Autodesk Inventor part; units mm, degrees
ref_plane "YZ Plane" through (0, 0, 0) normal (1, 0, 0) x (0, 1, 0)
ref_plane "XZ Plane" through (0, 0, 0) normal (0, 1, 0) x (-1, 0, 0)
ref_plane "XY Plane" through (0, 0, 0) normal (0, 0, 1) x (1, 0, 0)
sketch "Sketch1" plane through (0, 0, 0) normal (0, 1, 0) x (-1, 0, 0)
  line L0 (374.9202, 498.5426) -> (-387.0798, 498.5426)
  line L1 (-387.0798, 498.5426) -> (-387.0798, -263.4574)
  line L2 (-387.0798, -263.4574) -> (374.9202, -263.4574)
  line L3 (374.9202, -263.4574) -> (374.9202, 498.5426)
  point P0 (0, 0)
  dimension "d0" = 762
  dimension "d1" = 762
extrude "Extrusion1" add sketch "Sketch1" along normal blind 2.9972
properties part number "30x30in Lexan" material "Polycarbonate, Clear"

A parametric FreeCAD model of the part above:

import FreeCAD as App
import Part
import Sketcher

V = App.Vector
Q = App.Units.Quantity

doc = App.newDocument("Part")
params = doc.addObject("Spreadsheet::Sheet", "Params")
for row, (alias, value) in enumerate([
    ("sketch1_width", "30 in"),
    ("pad1_length", "0.118 in"),
], start=1):
    params.set(f"A{row}", alias)
    params.set(f"B{row}", "=" + value)
    params.setAlias(f"B{row}", alias)

body = doc.addObject("PartDesign::Body", "Body")

sketch1 = doc.addObject("Sketcher::SketchObject", "Sketch")
body.addObject(sketch1)
sketch1.AttachmentSupport = (doc.XZ_Plane, [""])
sketch1.MapMode = "FlatFace"
sketch1.addGeometry(Part.LineSegment(V(-375, -263, 0), V(-375, 499, 0)), False)
sketch1.addGeometry(Part.LineSegment(V(-375, 499, 0), V(387, 499, 0)), False)
sketch1.addGeometry(Part.LineSegment(V(387, 499, 0), V(387, -263, 0)), False)
sketch1.addGeometry(Part.LineSegment(V(387, -263, 0), V(-375, -263, 0)), False)
sketch1.addConstraint(Sketcher.Constraint("Coincident", 0, 2, 1, 1))
sketch1.addConstraint(Sketcher.Constraint("Coincident", 1, 2, 2, 1))
sketch1.addConstraint(Sketcher.Constraint("Coincident", 2, 2, 3, 1))
sketch1.addConstraint(Sketcher.Constraint("Coincident", 3, 2, 0, 1))
sketch1.addConstraint(Sketcher.Constraint("Vertical", 0))
sketch1.addConstraint(Sketcher.Constraint("Horizontal", 1))
sketch1.addConstraint(Sketcher.Constraint("Vertical", 2))
sketch1.addConstraint(Sketcher.Constraint("Horizontal", 3))
sketch1.addConstraint(Sketcher.Constraint("Equal", 3, 0))
sketch1.addConstraint(Sketcher.Constraint("DistanceX", 1, 1, 1, 2, Q("30 in")))
sketch1.addConstraint(Sketcher.Constraint("DistanceX", 0, 2, -1, 1, 374.9202))
sketch1.addConstraint(Sketcher.Constraint("DistanceY", -1, 1, 0, 2, 498.5426))
sketch1.setExpression("Constraints[9]", "Params.sketch1_width")
pad1 = doc.addObject("PartDesign::Pad", "Pad")
body.addObject(pad1)
pad1.Profile = sketch1
pad1.setExpression("Length", "Params.pad1_length")
pad1.Reversed = True

doc.recompute()
